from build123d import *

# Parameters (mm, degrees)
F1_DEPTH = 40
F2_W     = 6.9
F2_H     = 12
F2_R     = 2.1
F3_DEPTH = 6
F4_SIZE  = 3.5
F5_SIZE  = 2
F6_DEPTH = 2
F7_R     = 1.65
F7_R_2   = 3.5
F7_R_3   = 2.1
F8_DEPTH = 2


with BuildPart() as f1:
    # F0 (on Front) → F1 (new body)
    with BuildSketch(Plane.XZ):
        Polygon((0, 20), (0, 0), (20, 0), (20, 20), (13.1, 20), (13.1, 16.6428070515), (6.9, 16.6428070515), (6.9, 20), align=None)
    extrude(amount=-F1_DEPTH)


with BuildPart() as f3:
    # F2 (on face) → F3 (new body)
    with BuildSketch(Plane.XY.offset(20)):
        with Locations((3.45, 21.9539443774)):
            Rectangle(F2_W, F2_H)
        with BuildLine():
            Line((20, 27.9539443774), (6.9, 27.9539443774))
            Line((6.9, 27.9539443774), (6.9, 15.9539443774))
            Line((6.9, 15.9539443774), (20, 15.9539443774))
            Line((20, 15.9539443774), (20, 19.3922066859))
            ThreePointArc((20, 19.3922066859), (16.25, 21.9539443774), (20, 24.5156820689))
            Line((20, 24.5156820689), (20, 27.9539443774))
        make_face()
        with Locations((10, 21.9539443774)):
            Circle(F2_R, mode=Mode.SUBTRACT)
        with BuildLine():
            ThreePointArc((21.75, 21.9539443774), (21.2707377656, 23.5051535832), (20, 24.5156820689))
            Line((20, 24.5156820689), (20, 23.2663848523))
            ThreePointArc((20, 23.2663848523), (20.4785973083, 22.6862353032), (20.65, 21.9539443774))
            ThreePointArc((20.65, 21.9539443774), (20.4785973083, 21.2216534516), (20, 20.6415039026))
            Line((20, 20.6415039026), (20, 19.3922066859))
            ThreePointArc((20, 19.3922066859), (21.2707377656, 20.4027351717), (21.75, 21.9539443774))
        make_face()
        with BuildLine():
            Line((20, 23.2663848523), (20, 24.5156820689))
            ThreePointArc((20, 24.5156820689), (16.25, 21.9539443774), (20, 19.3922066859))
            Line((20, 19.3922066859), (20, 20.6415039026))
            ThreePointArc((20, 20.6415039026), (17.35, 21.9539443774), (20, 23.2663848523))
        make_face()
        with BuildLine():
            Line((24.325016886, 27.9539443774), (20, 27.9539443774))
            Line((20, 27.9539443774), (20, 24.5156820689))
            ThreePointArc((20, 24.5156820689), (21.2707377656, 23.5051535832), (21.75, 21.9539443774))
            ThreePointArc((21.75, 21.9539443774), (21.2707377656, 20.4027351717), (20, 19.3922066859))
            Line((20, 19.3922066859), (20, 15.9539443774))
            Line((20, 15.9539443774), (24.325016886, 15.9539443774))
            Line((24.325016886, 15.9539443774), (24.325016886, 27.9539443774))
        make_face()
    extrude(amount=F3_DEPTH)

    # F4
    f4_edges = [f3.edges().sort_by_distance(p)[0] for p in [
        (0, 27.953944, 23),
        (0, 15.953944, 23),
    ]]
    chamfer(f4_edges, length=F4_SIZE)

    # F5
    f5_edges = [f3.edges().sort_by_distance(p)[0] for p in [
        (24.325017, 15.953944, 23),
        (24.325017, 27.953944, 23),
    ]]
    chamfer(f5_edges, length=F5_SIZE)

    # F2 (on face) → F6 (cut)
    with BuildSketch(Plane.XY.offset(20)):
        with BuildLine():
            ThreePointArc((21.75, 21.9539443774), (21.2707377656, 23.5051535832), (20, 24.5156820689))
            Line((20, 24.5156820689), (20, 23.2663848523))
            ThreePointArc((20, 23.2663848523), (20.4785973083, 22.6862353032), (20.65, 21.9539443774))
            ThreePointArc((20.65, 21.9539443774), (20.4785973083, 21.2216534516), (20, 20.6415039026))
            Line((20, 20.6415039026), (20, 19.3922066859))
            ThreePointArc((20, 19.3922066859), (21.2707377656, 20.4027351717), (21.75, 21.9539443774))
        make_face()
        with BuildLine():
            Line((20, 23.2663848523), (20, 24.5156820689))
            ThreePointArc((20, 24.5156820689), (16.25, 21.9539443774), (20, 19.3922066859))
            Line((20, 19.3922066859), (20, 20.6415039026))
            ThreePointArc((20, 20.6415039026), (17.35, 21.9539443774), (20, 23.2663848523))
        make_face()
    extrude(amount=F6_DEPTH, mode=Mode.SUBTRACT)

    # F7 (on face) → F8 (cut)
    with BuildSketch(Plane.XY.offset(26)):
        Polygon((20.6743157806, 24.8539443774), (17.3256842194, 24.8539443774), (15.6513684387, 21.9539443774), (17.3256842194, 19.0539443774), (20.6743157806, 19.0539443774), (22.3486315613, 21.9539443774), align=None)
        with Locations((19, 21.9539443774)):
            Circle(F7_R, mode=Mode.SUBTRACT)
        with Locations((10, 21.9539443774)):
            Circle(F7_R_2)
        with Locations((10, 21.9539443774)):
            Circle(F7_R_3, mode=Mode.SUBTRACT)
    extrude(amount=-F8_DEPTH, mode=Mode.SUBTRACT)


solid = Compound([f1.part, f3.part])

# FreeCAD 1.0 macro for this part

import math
import FreeCAD as App
import Part
import Sketcher
Q = App.Units.Quantity


def edges_at(feature, points):
    """Names of the edges that pass closest to the given points."""
    edges = feature.Shape.Edges
    near = lambda p: min(range(len(edges)), key=lambda i: edges[i].distToShape(Part.Vertex(*p))[0])
    return sorted({f"Edge{near(p) + 1}" for p in points})

doc = App.newDocument("Part")
body = doc.addObject("PartDesign::Body", "Body")

# Sketch on XZ plane
sketch1 = body.newObject("Sketcher::SketchObject", "Sketch")
sketch1.AttachmentSupport = (doc.getObject("XZ_Plane"), [""])
sketch1.MapMode = "FlatFace"
sketch1.addGeometry(Part.LineSegment(App.Vector(0, 20, 0), App.Vector(0, 0, 0)), False)
sketch1.addGeometry(Part.LineSegment(App.Vector(0, 0, 0), App.Vector(20, 0, 0)), False)
sketch1.addGeometry(Part.LineSegment(App.Vector(20, 0, 0), App.Vector(20, 20, 0)), False)
sketch1.addGeometry(Part.LineSegment(App.Vector(20, 20, 0), App.Vector(13.1, 20, 0)), False)
sketch1.addGeometry(Part.LineSegment(App.Vector(13.1, 20, 0), App.Vector(13.1, 16.642807, 0)), False)
sketch1.addGeometry(Part.LineSegment(App.Vector(13.1, 16.642807, 0), App.Vector(6.9, 16.642807, 0)), False)
sketch1.addGeometry(Part.LineSegment(App.Vector(6.9, 16.642807, 0), App.Vector(6.9, 20, 0)), False)
sketch1.addGeometry(Part.LineSegment(App.Vector(6.9, 20, 0), App.Vector(0, 20, 0)), False)
sketch1.addConstraint(Sketcher.Constraint("Coincident", 0, 2, 1, 1))
sketch1.addConstraint(Sketcher.Constraint("Coincident", 1, 2, 2, 1))
sketch1.addConstraint(Sketcher.Constraint("Coincident", 2, 2, 3, 1))
sketch1.addConstraint(Sketcher.Constraint("Coincident", 3, 2, 4, 1))
sketch1.addConstraint(Sketcher.Constraint("Coincident", 4, 2, 5, 1))
sketch1.addConstraint(Sketcher.Constraint("Coincident", 5, 2, 6, 1))
sketch1.addConstraint(Sketcher.Constraint("Coincident", 6, 2, 7, 1))
sketch1.addConstraint(Sketcher.Constraint("Coincident", 7, 2, 0, 1))
sketch1.addConstraint(Sketcher.Constraint("Vertical", 0))
sketch1.addConstraint(Sketcher.Constraint("Horizontal", 1))
sketch1.addConstraint(Sketcher.Constraint("Vertical", 2))
sketch1.addConstraint(Sketcher.Constraint("Horizontal", 3))
sketch1.addConstraint(Sketcher.Constraint("Vertical", 4))
sketch1.addConstraint(Sketcher.Constraint("Horizontal", 5))
sketch1.addConstraint(Sketcher.Constraint("Vertical", 6))
sketch1.addConstraint(Sketcher.Constraint("Horizontal", 7))
sketch1.addConstraint(Sketcher.Constraint("Coincident", 0, 2, -1, 1))
sketch1.addConstraint(Sketcher.Constraint("Horizontal", 3, 2, 6, 2))
sketch1.addConstraint(Sketcher.Constraint("Equal", 3, 7))
sketch1.addConstraint(Sketcher.Constraint("Equal", 1, 0))
sketch1.addConstraint(Sketcher.Constraint("DistanceX", 1, 1, 1, 2, 20.0))
sketch1.addConstraint(Sketcher.Constraint("DistanceX", 3, 2, 3, 1, 6.9))
sketch1.addConstraint(Sketcher.Constraint("DistanceY", 4, 2, 4, 1, 3.357193))
pad1 = body.newObject("PartDesign::Pad", "Pad")
pad1.Profile = sketch1
pad1.Length = 40
pad1.Reversed = True
body2 = doc.addObject("PartDesign::Body", "Body001")

# Sketch on XY plane
sketch2 = body2.newObject("Sketcher::SketchObject", "Sketch001")
sketch2.AttachmentSupport = (doc.getObject("XY_Plane001"), [""])
sketch2.MapMode = "FlatFace"
sketch2.AttachmentOffset = App.Placement(App.Vector(0, 0, 20), App.Rotation())
sketch2.addGeometry(Part.LineSegment(App.Vector(0, 27.953944, 0), App.Vector(0, 15.953944, 0)), False)
sketch2.addGeometry(Part.LineSegment(App.Vector(0, 15.953944, 0), App.Vector(24.325017, 15.953944, 0)), False)
sketch2.addGeometry(Part.LineSegment(App.Vector(24.325017, 15.953944, 0), App.Vector(24.325017, 27.953944, 0)), False)
sketch2.addGeometry(Part.LineSegment(App.Vector(24.325017, 27.953944, 0), App.Vector(0, 27.953944, 0)), False)
sketch2.addGeometry(Part.Circle(App.Vector(10, 21.953944, 0), App.Vector(0, 0, 1), 2.1), False)
sketch2.addGeometry(Part.ArcOfCircle(Part.Circle(App.Vector(19, 21.953944, 0), App.Vector(0, 0, 1), 1.65), math.radians(52.694799), math.radians(307.305201)), False)
sketch2.addGeometry(Part.ArcOfCircle(Part.Circle(App.Vector(19, 21.953944, 0), App.Vector(0, 0, 1), 1.65), math.radians(0), math.radians(52.694799)), False)
sketch2.addGeometry(Part.ArcOfCircle(Part.Circle(App.Vector(19, 21.953944, 0), App.Vector(0, 0, 1), 1.65), math.radians(-52.694799), math.radians(0)), False)
sketch2.addConstraint(Sketcher.Constraint("Coincident", 0, 2, 1, 1))
sketch2.addConstraint(Sketcher.Constraint("Coincident", 1, 2, 2, 1))
sketch2.addConstraint(Sketcher.Constraint("Coincident", 2, 2, 3, 1))
sketch2.addConstraint(Sketcher.Constraint("Coincident", 3, 2, 0, 1))
sketch2.addConstraint(Sketcher.Constraint("Tangent", 5, 1, 6, 2))
sketch2.addConstraint(Sketcher.Constraint("Tangent", 6, 1, 7, 2))
sketch2.addConstraint(Sketcher.Constraint("Tangent", 7, 1, 5, 2))
sketch2.addConstraint(Sketcher.Constraint("Vertical", 0))
sketch2.addConstraint(Sketcher.Constraint("Horizontal", 1))
sketch2.addConstraint(Sketcher.Constraint("Vertical", 2))
sketch2.addConstraint(Sketcher.Constraint("Horizontal", 3))
sketch2.addConstraint(Sketcher.Constraint("PointOnObject", 0, 2, -2))
sketch2.addConstraint(Sketcher.Constraint("Horizontal", 4, 3, 5, 3))
sketch2.addConstraint(Sketcher.Constraint("Horizontal", 7, 3, 6, 1))
sketch2.addConstraint(Sketcher.Constraint("Vertical", 5, 1, 7, 1))
sketch2.addConstraint(Sketcher.Constraint("Diameter", 4, 4.2))
sketch2.addConstraint(Sketcher.Constraint("DistanceY", 0, 2, 0, 1, 12.0))
sketch2.addConstraint(Sketcher.Constraint("Radius", 5, 1.65))
sketch2.addConstraint(Sketcher.Constraint("DistanceX", -1, 1, 4, 3, 10.0))
sketch2.addConstraint(Sketcher.Constraint("DistanceX", -1, 1, 5, 3, 19.0))
sketch2.addConstraint(Sketcher.Constraint("DistanceX", -1, 1, 5, 1, 20.0))
sketch2.addConstraint(Sketcher.Constraint("DistanceY", 0, 2, 4, 3, 6.0))
sketch2.addConstraint(Sketcher.Constraint("DistanceX", 1, 1, 1, 2, 24.325017))
sketch2.addConstraint(Sketcher.Constraint("DistanceY", -1, 1, 4, 3, 21.953944))
pad2 = body2.newObject("PartDesign::Pad", "Pad001")
pad2.Profile = sketch2
pad2.Length = 6
doc.recompute()

chamfer = body2.newObject("PartDesign::Chamfer", "Chamfer")
chamfer.Base = (pad2, edges_at(pad2, [(0, 27.954, 23), (0, 15.954, 23)]))
chamfer.Size = 3.5
doc.recompute()

chamfer2 = body2.newObject("PartDesign::Chamfer", "Chamfer001")
chamfer2.Base = (chamfer, edges_at(chamfer, [(24.325, 15.954, 23), (24.325, 27.954, 23)]))
chamfer2.Size = 2

# Sketch on XY plane
sketch3 = body2.newObject("Sketcher::SketchObject", "Sketch002")
sketch3.AttachmentSupport = (doc.getObject("XY_Plane001"), [""])
sketch3.MapMode = "FlatFace"
sketch3.AttachmentOffset = App.Placement(App.Vector(0, 0, 20), App.Rotation())
sketch3.addGeometry(Part.ArcOfCircle(Part.Circle(App.Vector(19, 21.953944, 0), App.Vector(0, 0, 1), 2.75), math.radians(0), math.radians(68.676314)), False)
sketch3.addGeometry(Part.ArcOfCircle(Part.Circle(App.Vector(19, 21.953944, 0), App.Vector(0, 0, 1), 2.75), math.radians(68.676314), math.radians(291.323686)), False)
sketch3.addGeometry(Part.ArcOfCircle(Part.Circle(App.Vector(19, 21.953944, 0), App.Vector(0, 0, 1), 2.75), math.radians(-68.676314), math.radians(0)), False)
sketch3.addGeometry(Part.ArcOfCircle(Part.Circle(App.Vector(19, 21.953944, 0), App.Vector(0, 0, 1), 1.65), math.radians(0), math.radians(52.694799)), False)
sketch3.addGeometry(Part.ArcOfCircle(Part.Circle(App.Vector(19, 21.953944, 0), App.Vector(0, 0, 1), 1.65), math.radians(-52.694799), math.radians(0)), False)
sketch3.addGeometry(Part.ArcOfCircle(Part.Circle(App.Vector(19, 21.953944, 0), App.Vector(0, 0, 1), 1.65), math.radians(52.694799), math.radians(307.305201)), False)
sketch3.addConstraint(Sketcher.Constraint("Tangent", 0, 2, 1, 1))
sketch3.addConstraint(Sketcher.Constraint("Tangent", 1, 2, 2, 1))
sketch3.addConstraint(Sketcher.Constraint("Tangent", 2, 2, 0, 1))
sketch3.addConstraint(Sketcher.Constraint("Tangent", 3, 1, 4, 2))
sketch3.addConstraint(Sketcher.Constraint("Tangent", 4, 1, 5, 2))
sketch3.addConstraint(Sketcher.Constraint("Tangent", 5, 1, 3, 2))
sketch3.addConstraint(Sketcher.Constraint("Coincident", 3, 3, 0, 3))
sketch3.addConstraint(Sketcher.Constraint("Horizontal", 5, 3, 2, 2))
sketch3.addConstraint(Sketcher.Constraint("Horizontal", 2, 2, 3, 1))
sketch3.addConstraint(Sketcher.Constraint("Vertical", 0, 2, 1, 2))
sketch3.addConstraint(Sketcher.Constraint("Vertical", 1, 2, 4, 1))
sketch3.addConstraint(Sketcher.Constraint("Vertical", 4, 1, 5, 1))
sketch3.addConstraint(Sketcher.Constraint("Radius", 0, 2.75))
sketch3.addConstraint(Sketcher.Constraint("Radius", 3, 1.65))
sketch3.addConstraint(Sketcher.Constraint("DistanceX", -1, 1, 0, 3, 19.0))
sketch3.addConstraint(Sketcher.Constraint("DistanceX", -1, 1, 0, 2, 20.0))
sketch3.addConstraint(Sketcher.Constraint("DistanceY", -1, 1, 0, 3, 21.953944))
pocket1 = body2.newObject("PartDesign::Pocket", "Pocket")
pocket1.Profile = sketch3
pocket1.Length = 2
pocket1.Reversed = True

# Sketch on XY plane
sketch4 = body2.newObject("Sketcher::SketchObject", "Sketch003")
sketch4.AttachmentSupport = (doc.getObject("XY_Plane001"), [""])
sketch4.MapMode = "FlatFace"
sketch4.AttachmentOffset = App.Placement(App.Vector(0, 0, 26), App.Rotation())
sketch4.addGeometry(Part.LineSegment(App.Vector(20.674316, 24.853944, 0), App.Vector(17.325684, 24.853944, 0)), False)
sketch4.addGeometry(Part.LineSegment(App.Vector(17.325684, 24.853944, 0), App.Vector(15.651368, 21.953944, 0)), False)
sketch4.addGeometry(Part.LineSegment(App.Vector(15.651368, 21.953944, 0), App.Vector(17.325684, 19.053944, 0)), False)
sketch4.addGeometry(Part.LineSegment(App.Vector(17.325684, 19.053944, 0), App.Vector(20.674316, 19.053944, 0)), False)
sketch4.addGeometry(Part.LineSegment(App.Vector(20.674316, 19.053944, 0), App.Vector(22.348632, 21.953944, 0)), False)
sketch4.addGeometry(Part.LineSegment(App.Vector(22.348632, 21.953944, 0), App.Vector(20.674316, 24.853944, 0)), False)
sketch4.addGeometry(Part.Circle(App.Vector(19, 21.953944, 0), App.Vector(0, 0, 1), 1.65), False)
sketch4.addGeometry(Part.Circle(App.Vector(10, 21.953944, 0), App.Vector(0, 0, 1), 3.5), False)
sketch4.addGeometry(Part.Circle(App.Vector(10, 21.953944, 0), App.Vector(0, 0, 1), 2.1), False)
sketch4.addConstraint(Sketcher.Constraint("Coincident", 0, 2, 1, 1))
sketch4.addConstraint(Sketcher.Constraint("Coincident", 1, 2, 2, 1))
sketch4.addConstraint(Sketcher.Constraint("Coincident", 2, 2, 3, 1))
sketch4.addConstraint(Sketcher.Constraint("Coincident", 3, 2, 4, 1))
sketch4.addConstraint(Sketcher.Constraint("Coincident", 4, 2, 5, 1))
sketch4.addConstraint(Sketcher.Constraint("Coincident", 5, 2, 0, 1))
sketch4.addConstraint(Sketcher.Constraint("Horizontal", 0))
sketch4.addConstraint(Sketcher.Constraint("Horizontal", 3))
sketch4.addConstraint(Sketcher.Constraint("Coincident", 8, 3, 7, 3))
sketch4.addConstraint(Sketcher.Constraint("Parallel", 1, 4))
sketch4.addConstraint(Sketcher.Constraint("Parallel", 2, 5))
sketch4.addConstraint(Sketcher.Constraint("Horizontal", 6, 3, 7, 3))
sketch4.addConstraint(Sketcher.Constraint("Horizontal", 8, 3, 1, 2))
sketch4.addConstraint(Sketcher.Constraint("Horizontal", 1, 2, 4, 2))
sketch4.addConstraint(Sketcher.Constraint("Vertical", 0, 2, 2, 2))
sketch4.addConstraint(Sketcher.Constraint("Vertical", 3, 2, 5, 2))
sketch4.addConstraint(Sketcher.Constraint("Diameter", 7, 7.0))
sketch4.addConstraint(Sketcher.Constraint("Diameter", 6, 3.3))
sketch4.addConstraint(Sketcher.Constraint("Diameter", 8, 4.2))
sketch4.addConstraint(Sketcher.Constraint("Angle", 1, Q("-120 deg")))
sketch4.addConstraint(Sketcher.Constraint("DistanceX", -1, 1, 6, 3, 19.0))
sketch4.addConstraint(Sketcher.Constraint("DistanceX", -1, 1, 7, 3, 10.0))
sketch4.addConstraint(Sketcher.Constraint("DistanceY", 6, 3, 0, 2, 2.9))
sketch4.addConstraint(Sketcher.Constraint("DistanceX", 0, 2, 0, 1, 3.348632))
sketch4.addConstraint(Sketcher.Constraint("DistanceX", -1, 1, 1, 2, 15.651368))
sketch4.addConstraint(Sketcher.Constraint("DistanceY", -1, 1, 6, 3, 21.953944))
pocket2 = body2.newObject("PartDesign::Pocket", "Pocket001")
pocket2.Profile = sketch4
pocket2.Length = 2

doc.recompute()
